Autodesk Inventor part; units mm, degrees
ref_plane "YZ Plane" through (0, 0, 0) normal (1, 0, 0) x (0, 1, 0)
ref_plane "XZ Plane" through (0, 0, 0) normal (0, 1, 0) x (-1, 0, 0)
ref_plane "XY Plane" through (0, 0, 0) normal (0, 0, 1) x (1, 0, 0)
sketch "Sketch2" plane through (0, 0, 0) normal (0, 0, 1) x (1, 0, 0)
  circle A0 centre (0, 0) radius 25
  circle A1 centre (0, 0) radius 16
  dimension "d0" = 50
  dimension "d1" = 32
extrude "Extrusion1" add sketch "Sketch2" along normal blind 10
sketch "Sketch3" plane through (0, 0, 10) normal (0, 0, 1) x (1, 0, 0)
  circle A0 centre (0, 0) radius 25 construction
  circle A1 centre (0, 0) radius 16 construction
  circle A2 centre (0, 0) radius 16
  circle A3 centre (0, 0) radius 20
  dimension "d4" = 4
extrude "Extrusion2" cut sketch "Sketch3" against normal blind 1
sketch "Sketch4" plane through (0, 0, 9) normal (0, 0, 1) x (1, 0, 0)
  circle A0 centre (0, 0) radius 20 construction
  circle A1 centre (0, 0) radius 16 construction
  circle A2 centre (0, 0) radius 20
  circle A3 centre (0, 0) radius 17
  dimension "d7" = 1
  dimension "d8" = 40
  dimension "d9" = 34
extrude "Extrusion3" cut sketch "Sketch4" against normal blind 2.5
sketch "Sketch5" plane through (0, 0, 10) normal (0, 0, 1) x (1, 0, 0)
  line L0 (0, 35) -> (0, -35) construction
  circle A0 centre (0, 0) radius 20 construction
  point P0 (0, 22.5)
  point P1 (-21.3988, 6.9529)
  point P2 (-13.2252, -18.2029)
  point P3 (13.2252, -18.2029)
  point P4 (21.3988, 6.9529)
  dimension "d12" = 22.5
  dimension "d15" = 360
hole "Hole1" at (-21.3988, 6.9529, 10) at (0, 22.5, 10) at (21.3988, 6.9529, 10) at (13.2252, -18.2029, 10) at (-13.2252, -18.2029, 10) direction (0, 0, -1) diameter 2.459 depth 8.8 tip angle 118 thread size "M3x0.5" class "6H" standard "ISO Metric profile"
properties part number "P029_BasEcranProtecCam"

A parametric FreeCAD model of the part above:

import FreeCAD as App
import Part
import Sketcher

doc = App.newDocument("Part")
params = doc.addObject("Spreadsheet::Sheet", "Params")
for row, (alias, value) in enumerate([
    ("sketch1_diameter", "50 mm"),
    ("sketch1_diameter2", "32 mm"),
    ("pad1_length", "10 mm"),
    ("sketch2_diameter", "40 mm"),
    ("sketch2_diameter2", "32 mm"),
    ("pocket1_length", "1 mm"),
    ("sketch3_diameter", "40 mm"),
    ("sketch3_diameter2", "34 mm"),
    ("pocket2_length", "2.5 mm"),
    ("hole_diameter", "2.459 mm"),
    ("hole_depth", "8.8 mm"),
], start=1):
    params.set(f"A{row}", alias)
    params.set(f"B{row}", "=" + value)
    params.setAlias(f"B{row}", alias)

body = doc.addObject("PartDesign::Body", "Body")

# Sketch on XY plane
sketch1 = body.newObject("Sketcher::SketchObject", "Sketch")
sketch1.AttachmentSupport = (doc.getObject("XY_Plane"), [""])
sketch1.MapMode = "FlatFace"
sketch1.addGeometry(Part.Circle(App.Vector(0, 0, 0), App.Vector(0, 0, 1), 25), False)
sketch1.addGeometry(Part.Circle(App.Vector(0, 0, 0), App.Vector(0, 0, 1), 16), False)
sketch1.addConstraint(Sketcher.Constraint("Coincident", 0, 3, -1, 1))
sketch1.addConstraint(Sketcher.Constraint("Coincident", 1, 3, -1, 1))
sketch1.addConstraint(Sketcher.Constraint("Diameter", 0, 50.0))
sketch1.addConstraint(Sketcher.Constraint("Diameter", 1, 32.0))
sketch1.setExpression("Constraints[2]", "Params.sketch1_diameter")
sketch1.setExpression("Constraints[3]", "Params.sketch1_diameter2")
pad1 = body.newObject("PartDesign::Pad", "Pad")
pad1.Profile = sketch1
pad1.setExpression("Length", "Params.pad1_length")

# Sketch on XY plane
sketch2 = body.newObject("Sketcher::SketchObject", "Sketch001")
sketch2.AttachmentSupport = (doc.getObject("XY_Plane"), [""])
sketch2.MapMode = "FlatFace"
sketch2.AttachmentOffset = App.Placement(App.Vector(0, 0, 10), App.Rotation())
sketch2.addGeometry(Part.Circle(App.Vector(0, 0, 0), App.Vector(0, 0, 1), 20), False)
sketch2.addGeometry(Part.Circle(App.Vector(0, 0, 0), App.Vector(0, 0, 1), 16), False)
sketch2.addConstraint(Sketcher.Constraint("Coincident", 0, 3, -1, 1))
sketch2.addConstraint(Sketcher.Constraint("Coincident", 1, 3, -1, 1))
sketch2.addConstraint(Sketcher.Constraint("Diameter", 0, 40.0))
sketch2.addConstraint(Sketcher.Constraint("Diameter", 1, 32.0))
sketch2.setExpression("Constraints[2]", "Params.sketch2_diameter")
sketch2.setExpression("Constraints[3]", "Params.sketch2_diameter2")
pocket1 = body.newObject("PartDesign::Pocket", "Pocket")
pocket1.Profile = sketch2
pocket1.setExpression("Length", "Params.pocket1_length")

# Sketch on XY plane
sketch3 = body.newObject("Sketcher::SketchObject", "Sketch002")
sketch3.AttachmentSupport = (doc.getObject("XY_Plane"), [""])
sketch3.MapMode = "FlatFace"
sketch3.AttachmentOffset = App.Placement(App.Vector(0, 0, 9), App.Rotation())
sketch3.addGeometry(Part.Circle(App.Vector(0, 0, 0), App.Vector(0, 0, 1), 20), False)
sketch3.addGeometry(Part.Circle(App.Vector(0, 0, 0), App.Vector(0, 0, 1), 17), False)
sketch3.addConstraint(Sketcher.Constraint("Coincident", 0, 3, -1, 1))
sketch3.addConstraint(Sketcher.Constraint("Coincident", 1, 3, -1, 1))
sketch3.addConstraint(Sketcher.Constraint("Diameter", 0, 40.0))
sketch3.addConstraint(Sketcher.Constraint("Diameter", 1, 34.0))
sketch3.setExpression("Constraints[2]", "Params.sketch3_diameter")
sketch3.setExpression("Constraints[3]", "Params.sketch3_diameter2")
pocket2 = body.newObject("PartDesign::Pocket", "Pocket001")
pocket2.Profile = sketch3
pocket2.setExpression("Length", "Params.pocket2_length")

# Sketch on XY plane
sketch4 = body.newObject("Sketcher::SketchObject", "Sketch003")
sketch4.AttachmentSupport = (doc.getObject("XY_Plane"), [""])
sketch4.MapMode = "FlatFace"
sketch4.AttachmentOffset = App.Placement(App.Vector(0, 0, 10), App.Rotation())
sketch4.addGeometry(Part.Circle(App.Vector(-21.4, 7, 0), App.Vector(0, 0, 1), 1.2), False)
sketch4.addGeometry(Part.Circle(App.Vector(0, 22.5, 0), App.Vector(0, 0, 1), 1.2), False)
sketch4.addGeometry(Part.Circle(App.Vector(21.4, 7, 0), App.Vector(0, 0, 1), 1.2), False)
sketch4.addGeometry(Part.Circle(App.Vector(13.2, -18.2, 0), App.Vector(0, 0, 1), 1.2), False)
sketch4.addGeometry(Part.Circle(App.Vector(-13.2, -18.2, 0), App.Vector(0, 0, 1), 1.2), False)
sketch4.addConstraint(Sketcher.Constraint("Equal", 0, 1))
sketch4.addConstraint(Sketcher.Constraint("Equal", 1, 2))
sketch4.addConstraint(Sketcher.Constraint("Equal", 2, 3))
sketch4.addConstraint(Sketcher.Constraint("Equal", 3, 4))
sketch4.addConstraint(Sketcher.Constraint("Symmetric", 0, 3, 2, 3, -2))
sketch4.addConstraint(Sketcher.Constraint("Symmetric", 3, 3, 4, 3, -2))
sketch4.addConstraint(Sketcher.Constraint("PointOnObject", 1, 3, -2))
sketch4.addConstraint(Sketcher.Constraint("Diameter", 0, 2.459))
sketch4.addConstraint(Sketcher.Constraint("DistanceY", -1, 1, 1, 3, 22.5))
sketch4.addConstraint(Sketcher.Constraint("DistanceY", -1, 1, 0, 3, 6.953))
sketch4.addConstraint(Sketcher.Constraint("DistanceY", 3, 3, -1, 1, 18.203))
sketch4.addConstraint(Sketcher.Constraint("DistanceX", 0, 3, 3, 3, 34.624))
sketch4.addConstraint(Sketcher.Constraint("DistanceX", 0, 3, -1, 1, 21.3988))
doc.recompute()
hole = body.newObject("PartDesign::Hole", "Hole")
hole.Profile = sketch4
hole.ThreadType = "None"
hole.setExpression("Diameter", "Params.hole_diameter")
hole.DepthType = "Dimension"
hole.setExpression("Depth", "Params.hole_depth")
hole.DrillPoint = "Angled"
hole.DrillPointAngle = 118

doc.recompute()
